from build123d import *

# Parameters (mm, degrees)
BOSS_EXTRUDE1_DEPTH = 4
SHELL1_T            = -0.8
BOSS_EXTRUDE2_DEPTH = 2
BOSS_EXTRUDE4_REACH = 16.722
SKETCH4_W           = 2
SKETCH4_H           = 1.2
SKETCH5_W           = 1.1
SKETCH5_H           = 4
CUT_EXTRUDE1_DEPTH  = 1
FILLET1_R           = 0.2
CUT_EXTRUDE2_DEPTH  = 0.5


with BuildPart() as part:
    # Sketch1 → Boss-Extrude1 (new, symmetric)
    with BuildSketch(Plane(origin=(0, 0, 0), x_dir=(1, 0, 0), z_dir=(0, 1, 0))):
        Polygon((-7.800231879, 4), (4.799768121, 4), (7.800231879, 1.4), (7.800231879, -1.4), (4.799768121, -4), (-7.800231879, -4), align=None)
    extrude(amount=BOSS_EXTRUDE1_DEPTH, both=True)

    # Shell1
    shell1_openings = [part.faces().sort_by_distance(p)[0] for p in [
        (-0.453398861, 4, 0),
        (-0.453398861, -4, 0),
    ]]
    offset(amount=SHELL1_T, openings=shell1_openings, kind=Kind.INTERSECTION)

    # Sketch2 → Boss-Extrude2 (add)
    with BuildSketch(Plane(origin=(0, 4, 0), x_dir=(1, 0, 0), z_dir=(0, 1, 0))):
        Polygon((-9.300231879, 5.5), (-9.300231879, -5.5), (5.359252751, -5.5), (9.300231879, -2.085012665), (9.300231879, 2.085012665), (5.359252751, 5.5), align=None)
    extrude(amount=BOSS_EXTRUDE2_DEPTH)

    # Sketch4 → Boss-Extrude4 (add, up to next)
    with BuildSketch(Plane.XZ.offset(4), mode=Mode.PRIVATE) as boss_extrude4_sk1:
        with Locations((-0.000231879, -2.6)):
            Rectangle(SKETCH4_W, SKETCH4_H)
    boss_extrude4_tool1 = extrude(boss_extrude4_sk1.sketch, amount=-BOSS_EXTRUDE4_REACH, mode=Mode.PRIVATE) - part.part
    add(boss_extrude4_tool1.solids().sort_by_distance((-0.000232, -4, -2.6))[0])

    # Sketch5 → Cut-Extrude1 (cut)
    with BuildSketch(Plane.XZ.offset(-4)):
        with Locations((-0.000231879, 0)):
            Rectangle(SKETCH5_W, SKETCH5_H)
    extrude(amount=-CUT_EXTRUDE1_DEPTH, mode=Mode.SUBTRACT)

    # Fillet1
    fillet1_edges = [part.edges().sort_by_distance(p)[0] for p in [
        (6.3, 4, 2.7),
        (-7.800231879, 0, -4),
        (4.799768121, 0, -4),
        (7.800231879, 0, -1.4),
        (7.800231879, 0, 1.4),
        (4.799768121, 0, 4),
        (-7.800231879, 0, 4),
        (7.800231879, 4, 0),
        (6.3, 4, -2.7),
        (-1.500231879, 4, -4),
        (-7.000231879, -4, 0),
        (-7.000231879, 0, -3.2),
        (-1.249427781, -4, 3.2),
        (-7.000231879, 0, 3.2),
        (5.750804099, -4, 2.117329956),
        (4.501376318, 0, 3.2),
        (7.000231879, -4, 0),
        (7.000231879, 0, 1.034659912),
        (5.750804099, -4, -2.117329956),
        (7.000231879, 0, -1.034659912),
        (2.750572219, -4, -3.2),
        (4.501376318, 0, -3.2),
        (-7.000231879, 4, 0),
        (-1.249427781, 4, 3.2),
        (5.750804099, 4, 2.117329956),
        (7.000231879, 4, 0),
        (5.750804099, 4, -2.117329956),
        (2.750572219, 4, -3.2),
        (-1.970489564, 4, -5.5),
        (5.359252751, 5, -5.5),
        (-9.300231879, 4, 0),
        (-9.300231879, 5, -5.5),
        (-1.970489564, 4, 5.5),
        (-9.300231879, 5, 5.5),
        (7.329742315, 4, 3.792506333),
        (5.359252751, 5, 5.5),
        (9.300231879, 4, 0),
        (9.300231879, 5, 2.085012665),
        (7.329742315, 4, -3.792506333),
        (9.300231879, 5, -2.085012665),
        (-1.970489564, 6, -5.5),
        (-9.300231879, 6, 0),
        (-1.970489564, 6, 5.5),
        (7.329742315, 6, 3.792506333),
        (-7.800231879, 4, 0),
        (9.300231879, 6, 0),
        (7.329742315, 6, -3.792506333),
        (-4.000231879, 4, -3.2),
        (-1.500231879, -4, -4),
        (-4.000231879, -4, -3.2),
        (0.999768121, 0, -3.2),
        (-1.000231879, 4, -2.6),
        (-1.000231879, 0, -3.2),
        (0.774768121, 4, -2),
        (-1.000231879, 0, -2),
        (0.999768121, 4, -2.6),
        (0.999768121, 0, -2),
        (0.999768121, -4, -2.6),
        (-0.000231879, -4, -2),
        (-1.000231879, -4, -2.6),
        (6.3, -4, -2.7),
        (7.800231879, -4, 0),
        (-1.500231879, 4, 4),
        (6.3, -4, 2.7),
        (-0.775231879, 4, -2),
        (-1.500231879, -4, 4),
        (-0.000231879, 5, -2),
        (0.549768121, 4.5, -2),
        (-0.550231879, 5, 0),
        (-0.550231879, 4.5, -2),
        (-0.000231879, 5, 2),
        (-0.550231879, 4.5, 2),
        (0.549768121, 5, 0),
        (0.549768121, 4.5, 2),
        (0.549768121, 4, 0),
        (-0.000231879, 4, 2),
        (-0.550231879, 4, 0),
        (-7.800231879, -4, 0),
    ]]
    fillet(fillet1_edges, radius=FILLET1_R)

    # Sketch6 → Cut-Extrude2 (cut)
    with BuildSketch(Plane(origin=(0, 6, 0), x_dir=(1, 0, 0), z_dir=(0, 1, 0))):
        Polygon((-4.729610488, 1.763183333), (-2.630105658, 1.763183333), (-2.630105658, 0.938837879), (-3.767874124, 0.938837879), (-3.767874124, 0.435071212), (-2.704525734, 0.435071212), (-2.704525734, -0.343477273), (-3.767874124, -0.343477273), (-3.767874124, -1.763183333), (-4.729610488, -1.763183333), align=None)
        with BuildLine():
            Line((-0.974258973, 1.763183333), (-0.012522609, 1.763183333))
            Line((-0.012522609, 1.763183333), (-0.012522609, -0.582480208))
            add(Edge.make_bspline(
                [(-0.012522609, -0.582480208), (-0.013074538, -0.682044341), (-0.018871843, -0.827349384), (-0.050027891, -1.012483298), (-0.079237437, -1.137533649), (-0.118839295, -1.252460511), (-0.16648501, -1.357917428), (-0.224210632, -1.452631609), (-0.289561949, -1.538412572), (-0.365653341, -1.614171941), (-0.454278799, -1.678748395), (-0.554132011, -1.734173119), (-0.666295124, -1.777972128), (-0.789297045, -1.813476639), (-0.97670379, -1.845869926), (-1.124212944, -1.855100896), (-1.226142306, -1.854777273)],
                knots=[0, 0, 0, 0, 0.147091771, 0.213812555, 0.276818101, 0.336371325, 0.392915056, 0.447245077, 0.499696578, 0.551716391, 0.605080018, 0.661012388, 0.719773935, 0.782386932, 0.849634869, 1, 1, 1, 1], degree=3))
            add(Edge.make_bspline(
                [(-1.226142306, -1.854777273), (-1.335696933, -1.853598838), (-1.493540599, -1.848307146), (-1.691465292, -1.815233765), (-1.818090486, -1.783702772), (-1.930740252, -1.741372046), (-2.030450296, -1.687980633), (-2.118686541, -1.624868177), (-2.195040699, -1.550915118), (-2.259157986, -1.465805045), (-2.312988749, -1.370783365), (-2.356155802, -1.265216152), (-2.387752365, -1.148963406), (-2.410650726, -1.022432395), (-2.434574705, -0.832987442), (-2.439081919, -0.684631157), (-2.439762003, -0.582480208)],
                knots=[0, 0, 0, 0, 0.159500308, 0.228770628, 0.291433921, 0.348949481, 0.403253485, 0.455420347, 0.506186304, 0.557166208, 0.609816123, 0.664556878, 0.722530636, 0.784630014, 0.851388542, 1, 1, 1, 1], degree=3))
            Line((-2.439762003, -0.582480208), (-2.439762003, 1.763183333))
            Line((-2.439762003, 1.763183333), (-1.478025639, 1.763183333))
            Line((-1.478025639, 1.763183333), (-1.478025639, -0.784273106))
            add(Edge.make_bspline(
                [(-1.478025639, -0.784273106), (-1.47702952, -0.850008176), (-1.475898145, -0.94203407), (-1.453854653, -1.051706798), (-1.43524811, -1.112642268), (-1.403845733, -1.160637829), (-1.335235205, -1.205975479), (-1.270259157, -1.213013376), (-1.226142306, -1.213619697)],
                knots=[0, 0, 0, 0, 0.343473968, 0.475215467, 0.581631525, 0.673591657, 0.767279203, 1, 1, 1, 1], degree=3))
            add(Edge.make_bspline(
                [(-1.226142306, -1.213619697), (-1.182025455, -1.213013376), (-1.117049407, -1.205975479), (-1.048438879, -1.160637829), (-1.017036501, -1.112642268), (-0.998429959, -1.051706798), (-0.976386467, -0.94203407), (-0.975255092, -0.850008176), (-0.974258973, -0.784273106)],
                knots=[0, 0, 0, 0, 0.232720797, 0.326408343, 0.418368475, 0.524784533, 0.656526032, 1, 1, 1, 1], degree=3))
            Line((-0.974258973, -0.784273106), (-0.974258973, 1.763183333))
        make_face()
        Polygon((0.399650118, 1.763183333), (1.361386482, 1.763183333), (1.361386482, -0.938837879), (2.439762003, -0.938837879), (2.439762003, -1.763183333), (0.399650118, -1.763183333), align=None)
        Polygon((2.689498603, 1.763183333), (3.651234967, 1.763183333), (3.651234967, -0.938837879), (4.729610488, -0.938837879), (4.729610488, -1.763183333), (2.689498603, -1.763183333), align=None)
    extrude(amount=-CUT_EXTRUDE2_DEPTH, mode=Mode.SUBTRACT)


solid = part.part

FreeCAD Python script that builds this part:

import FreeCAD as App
import Part
import Sketcher
from FreeCAD import Vector
Q = App.Units.Quantity


def faces_at(feature, points):
    """Names of the faces that lie closest to the given points."""
    faces = feature.Shape.Faces
    near = lambda p: min(range(len(faces)), key=lambda i: faces[i].distToShape(Part.Vertex(*p))[0])
    return sorted({f"Face{near(p) + 1}" for p in points})


def add_polygon(sketch, points):
    """Adds a closed chain of lines whose ends are joined by coincident constraints."""
    first, n = sketch.GeometryCount, len(points)
    for a, b in zip(points, points[1:] + points[:1]):
        sketch.addGeometry(Part.LineSegment(App.Vector(*a, 0), App.Vector(*b, 0)), False)
    for i in range(n):
        sketch.addConstraint(Sketcher.Constraint("Coincident", first + i, 2, first + (i + 1) % n, 1))

doc = App.newDocument("Part")
body = doc.addObject("PartDesign::Body", "Body")

sketch1 = body.newObject("Sketcher::SketchObject", "Sketch")
sketch1.AttachmentSupport = (doc.getObject("XZ_Plane"), [""])
sketch1.MapMode = "FlatFace"
add_polygon(sketch1, [(4.799768, -4), (-7.800232, -4), (-7.800232, 4), (4.799768, 4), (7.800232, 1.4), (7.800232, -1.4)])
sketch1.addConstraint(Sketcher.Constraint("Horizontal", 0))
sketch1.addConstraint(Sketcher.Constraint("Vertical", 1))
sketch1.addConstraint(Sketcher.Constraint("Horizontal", 2))
sketch1.addConstraint(Sketcher.Constraint("Vertical", 4))
sketch1.addConstraint(Sketcher.Constraint("Symmetric", 2, 2, 5, 2, -1))
sketch1.addConstraint(Sketcher.Constraint("Equal", 3, 5))
sketch1.addConstraint(Sketcher.Constraint("DistanceY", 1, 1, 1, 2, 8.0))
sketch1.addConstraint(Sketcher.Constraint("DistanceX", 0, 2, 0, 1, 12.6))
sketch1.addConstraint(Sketcher.Constraint("DistanceY", 4, 2, 4, 1, 2.8))
sketch1.addConstraint(Sketcher.Constraint("Angle", 3, Q("-40.91 deg")))
sketch1.addConstraint(Sketcher.Constraint("DistanceX", 0, 2, -1, 1, 7.800232))
pad1 = body.newObject("PartDesign::Pad", "Pad")
pad1.Profile = sketch1
pad1.Length = 8
pad1.Midplane = True
doc.recompute()

thickness = body.newObject("PartDesign::Thickness", "Thickness")
thickness.Base = (pad1, faces_at(pad1, [(0, 4, 0), (0, -4, 0)]))
thickness.Value = 0.8
thickness.Reversed = True
thickness.Join = "Intersection"

sketch2 = body.newObject("Sketcher::SketchObject", "Sketch001")
sketch2.AttachmentSupport = (doc.getObject("XZ_Plane"), [""])
sketch2.MapMode = "FlatFace"
sketch2.AttachmentOffset = App.Placement(Vector(0, 0, -4), App.Rotation())
add_polygon(sketch2, [(-9.300232, -5.5), (-9.300232, 5.5), (5.359253, 5.5), (9.300232, 2.085013), (9.300232, -2.085013), (5.359253, -5.5)])
sketch2.addConstraint(Sketcher.Constraint("Vertical", 0))
sketch2.addConstraint(Sketcher.Constraint("Horizontal", 1))
sketch2.addConstraint(Sketcher.Constraint("Vertical", 3))
sketch2.addConstraint(Sketcher.Constraint("Horizontal", 5))
sketch2.addConstraint(Sketcher.Constraint("Symmetric", 1, 2, 4, 2, -1))
sketch2.addConstraint(Sketcher.Constraint("Equal", 2, 4))
sketch2.addConstraint(Sketcher.Constraint("DistanceY", 0, 1, 0, 2, 11.0))
sketch2.addConstraint(Sketcher.Constraint("Angle", 2, Q("-40.91 deg")))
sketch2.addConstraint(Sketcher.Constraint("DistanceX", 1, 1, 1, 2, 14.659485))
sketch2.addConstraint(Sketcher.Constraint("DistanceY", 3, 2, 3, 1, 4.170025))
sketch2.addConstraint(Sketcher.Constraint("DistanceX", 0, 2, -1, 1, 9.300232))
pad2 = body.newObject("PartDesign::Pad", "Pad001")
pad2.Profile = sketch2
pad2.Length = 2
pad2.Reversed = True

sketch3 = body.newObject("Sketcher::SketchObject", "Sketch002")
sketch3.AttachmentSupport = (doc.getObject("XZ_Plane"), [""])
sketch3.MapMode = "FlatFace"
sketch3.AttachmentOffset = App.Placement(Vector(0, 0, 4), App.Rotation())
add_polygon(sketch3, [(-1.000232, -2), (-1.000232, -3.2), (0.999768, -3.2), (0.999768, -2)])
sketch3.addConstraint(Sketcher.Constraint("Vertical", 0))
sketch3.addConstraint(Sketcher.Constraint("Horizontal", 1))
sketch3.addConstraint(Sketcher.Constraint("Vertical", 2))
sketch3.addConstraint(Sketcher.Constraint("Horizontal", 3))
sketch3.addConstraint(Sketcher.Constraint("DistanceX", 1, 1, 1, 2, 2.0))
sketch3.addConstraint(Sketcher.Constraint("DistanceY", 0, 2, 0, 1, 1.2))
sketch3.addConstraint(Sketcher.Constraint("DistanceY", 2, 2, -1, 1, 2.0))
sketch3.addConstraint(Sketcher.Constraint("DistanceX", 0, 2, -1, 1, 1.000232))
pad3 = body.newObject("PartDesign::Pad", "Pad002")
pad3.Profile = sketch3
pad3.Type = "UpToFirst"
pad3.Reversed = True

sketch4 = body.newObject("Sketcher::SketchObject", "Sketch003")
sketch4.AttachmentSupport = (doc.getObject("XZ_Plane"), [""])
sketch4.MapMode = "FlatFace"
sketch4.AttachmentOffset = App.Placement(Vector(0, 0, -4), App.Rotation())
add_polygon(sketch4, [(-0.550232, 2), (-0.550232, -2), (0.549768, -2), (0.549768, 2)])
sketch4.addConstraint(Sketcher.Constraint("Vertical", 0))
sketch4.addConstraint(Sketcher.Constraint("Horizontal", 1))
sketch4.addConstraint(Sketcher.Constraint("Vertical", 2))
sketch4.addConstraint(Sketcher.Constraint("Horizontal", 3))
sketch4.addConstraint(Sketcher.Constraint("DistanceY", 0, 2, 0, 1, 4.0))
sketch4.addConstraint(Sketcher.Constraint("DistanceX", 1, 1, 1, 2, 1.1))
sketch4.addConstraint(Sketcher.Constraint("DistanceY", 0, 2, -1, 1, 2.0))
sketch4.addConstraint(Sketcher.Constraint("DistanceX", 0, 2, -1, 1, 0.550232))
pocket1 = body.newObject("PartDesign::Pocket", "Pocket")
pocket1.Profile = sketch4
pocket1.Length = 1
doc.recompute()

fillet = body.newObject("PartDesign::Fillet", "Fillet")
fillet.Base = (pocket1, ["Edge1"])
fillet.UseAllEdges = True
fillet.Radius = 0.2

sketch5 = body.newObject("Sketcher::SketchObject", "Sketch004")
sketch5.AttachmentSupport = (doc.getObject("XZ_Plane"), [""])
sketch5.MapMode = "FlatFace"
sketch5.AttachmentOffset = App.Placement(Vector(0, 0, -6), App.Rotation())
add_polygon(sketch5, [(-2.630106, -1.763183), (-4.72961, -1.763183), (-4.72961, 1.763183), (-3.767874, 1.763183), (-3.767874, 0.343477), (-2.704526, 0.343477), (-2.704526, -0.435071), (-3.767874, -0.435071), (-3.767874, -0.938838), (-2.630106, -0.938838)])
sketch5.addGeometry(Part.LineSegment(Vector(-0.012523, -1.763183, 0), Vector(-0.974259, -1.763183, 0)), False)
sketch5.addGeometry(Part.LineSegment(Vector(-0.974259, -1.763183, 0), Vector(-0.974259, 0.784273, 0)), False)
sketch5.addGeometry(Part.BSplineCurve([Vector(-1.226142, 1.21362, 0), Vector(-1.182025, 1.213013, 0), Vector(-1.117049, 1.205975, 0), Vector(-1.048439, 1.160638, 0), Vector(-1.017037, 1.112642, 0), Vector(-0.99843, 1.051707, 0), Vector(-0.976386, 0.942034, 0), Vector(-0.975255, 0.850008, 0), Vector(-0.974259, 0.784273, 0)], [4, 1, 1, 1, 1, 1, 4], [0, 0.232720797, 0.326408343, 0.418368475, 0.524784533, 0.656526032, 1], False, 3, [1, 1, 1, 1, 1, 1, 1, 1, 1], False), False)
sketch5.addGeometry(Part.BSplineCurve([Vector(-1.478026, 0.784273, 0), Vector(-1.47703, 0.850008, 0), Vector(-1.475898, 0.942034, 0), Vector(-1.453855, 1.051707, 0), Vector(-1.435248, 1.112642, 0), Vector(-1.403846, 1.160638, 0), Vector(-1.335235, 1.205975, 0), Vector(-1.270259, 1.213013, 0), Vector(-1.226142, 1.21362, 0)], [4, 1, 1, 1, 1, 1, 4], [0, 0.343473968, 0.475215467, 0.581631525, 0.673591657, 0.767279203, 1], False, 3, [1, 1, 1, 1, 1, 1, 1, 1, 1], False), False)
sketch5.addGeometry(Part.LineSegment(Vector(-1.478026, 0.784273, 0), Vector(-1.478026, -1.763183, 0)), False)
sketch5.addGeometry(Part.LineSegment(Vector(-1.478026, -1.763183, 0), Vector(-2.439762, -1.763183, 0)), False)
sketch5.addGeometry(Part.LineSegment(Vector(-2.439762, -1.763183, 0), Vector(-2.439762, 0.58248, 0)), False)
sketch5.addGeometry(Part.BSplineCurve([Vector(-1.226142, 1.854777, 0), Vector(-1.335697, 1.853599, 0), Vector(-1.493541, 1.848307, 0), Vector(-1.691465, 1.815234, 0), Vector(-1.81809, 1.783703, 0), Vector(-1.93074, 1.741372, 0), Vector(-2.03045, 1.687981, 0), Vector(-2.118687, 1.624868, 0), Vector(-2.195041, 1.550915, 0), Vector(-2.259158, 1.465805, 0), Vector(-2.312989, 1.370783, 0), Vector(-2.356156, 1.265216, 0), Vector(-2.387752, 1.148963, 0), Vector(-2.410651, 1.022432, 0), Vector(-2.434575, 0.832987, 0), Vector(-2.439082, 0.684631, 0), Vector(-2.439762, 0.58248, 0)], [4, 1, 1, 1, 1, 1, 1, 1, 1, 1, 1, 1, 1, 1, 4], [0, 0.159500308, 0.228770628, 0.291433921, 0.348949481, 0.403253485, 0.455420347, 0.506186304, 0.557166208, 0.609816123, 0.664556878, 0.722530636, 0.784630014, 0.851388542, 1], False, 3, [1, 1, 1, 1, 1, 1, 1, 1, 1, 1, 1, 1, 1, 1, 1, 1, 1], False), False)
sketch5.addGeometry(Part.BSplineCurve([Vector(-0.012523, 0.58248, 0), Vector(-0.013075, 0.682044, 0), Vector(-0.018872, 0.827349, 0), Vector(-0.050028, 1.012483, 0), Vector(-0.079237, 1.137534, 0), Vector(-0.118839, 1.252461, 0), Vector(-0.166485, 1.357917, 0), Vector(-0.224211, 1.452632, 0), Vector(-0.289562, 1.538413, 0), Vector(-0.365653, 1.614172, 0), Vector(-0.454279, 1.678748, 0), Vector(-0.554132, 1.734173, 0), Vector(-0.666295, 1.777972, 0), Vector(-0.789297, 1.813477, 0), Vector(-0.976704, 1.84587, 0), Vector(-1.124213, 1.855101, 0), Vector(-1.226142, 1.854777, 0)], [4, 1, 1, 1, 1, 1, 1, 1, 1, 1, 1, 1, 1, 1, 4], [0, 0.147091771, 0.213812555, 0.276818101, 0.336371325, 0.392915056, 0.447245077, 0.499696578, 0.551716391, 0.605080018, 0.661012388, 0.719773935, 0.782386932, 0.849634869, 1], False, 3, [1, 1, 1, 1, 1, 1, 1, 1, 1, 1, 1, 1, 1, 1, 1, 1, 1], False), False)
sketch5.addGeometry(Part.LineSegment(Vector(-0.012523, 0.58248, 0), Vector(-0.012523, -1.763183, 0)), False)
add_polygon(sketch5, [(1.361386, -1.763183), (0.39965, -1.763183), (0.39965, 1.763183), (2.439762, 1.763183), (2.439762, 0.938838), (1.361386, 0.938838)])
add_polygon(sketch5, [(3.651235, -1.763183), (2.689499, -1.763183), (2.689499, 1.763183), (4.72961, 1.763183), (4.72961, 0.938838), (3.651235, 0.938838)])
sketch5.addConstraint(Sketcher.Constraint("Block", 12))
sketch5.addConstraint(Sketcher.Constraint("Block", 13))
sketch5.addConstraint(Sketcher.Constraint("Block", 17))
sketch5.addConstraint(Sketcher.Constraint("Block", 18))
sketch5.addConstraint(Sketcher.Constraint("Coincident", 10, 2, 11, 1))
sketch5.addConstraint(Sketcher.Constraint("Coincident", 11, 2, 12, 2))
sketch5.addConstraint(Sketcher.Constraint("Coincident", 13, 1, 14, 1))
sketch5.addConstraint(Sketcher.Constraint("Coincident", 14, 2, 15, 1))
sketch5.addConstraint(Sketcher.Constraint("Coincident", 15, 2, 16, 1))
sketch5.addConstraint(Sketcher.Constraint("Coincident", 16, 2, 17, 2))
sketch5.addConstraint(Sketcher.Constraint("Coincident", 18, 1, 19, 1))
sketch5.addConstraint(Sketcher.Constraint("Coincident", 19, 2, 10, 1))
sketch5.addConstraint(Sketcher.Constraint("Horizontal", 0))
sketch5.addConstraint(Sketcher.Constraint("Vertical", 1))
sketch5.addConstraint(Sketcher.Constraint("Horizontal", 2))
sketch5.addConstraint(Sketcher.Constraint("Vertical", 3))
sketch5.addConstraint(Sketcher.Constraint("Horizontal", 4))
sketch5.addConstraint(Sketcher.Constraint("Vertical", 5))
sketch5.addConstraint(Sketcher.Constraint("Horizontal", 6))
sketch5.addConstraint(Sketcher.Constraint("Vertical", 7))
sketch5.addConstraint(Sketcher.Constraint("Horizontal", 8))
sketch5.addConstraint(Sketcher.Constraint("Vertical", 9))
sketch5.addConstraint(Sketcher.Constraint("Horizontal", 10))
sketch5.addConstraint(Sketcher.Constraint("Vertical", 11))
sketch5.addConstraint(Sketcher.Constraint("Vertical", 14))
sketch5.addConstraint(Sketcher.Constraint("Horizontal", 15))
sketch5.addConstraint(Sketcher.Constraint("Vertical", 16))
sketch5.addConstraint(Sketcher.Constraint("Vertical", 19))
sketch5.addConstraint(Sketcher.Constraint("Horizontal", 20))
sketch5.addConstraint(Sketcher.Constraint("Vertical", 21))
sketch5.addConstraint(Sketcher.Constraint("Horizontal", 22))
sketch5.addConstraint(Sketcher.Constraint("Vertical", 23))
sketch5.addConstraint(Sketcher.Constraint("Horizontal", 24))
sketch5.addConstraint(Sketcher.Constraint("Vertical", 25))
sketch5.addConstraint(Sketcher.Constraint("Horizontal", 26))
sketch5.addConstraint(Sketcher.Constraint("Vertical", 27))
sketch5.addConstraint(Sketcher.Constraint("Horizontal", 28))
sketch5.addConstraint(Sketcher.Constraint("Vertical", 29))
sketch5.addConstraint(Sketcher.Constraint("Horizontal", 30))
sketch5.addConstraint(Sketcher.Constraint("Vertical", 31))
sketch5.addConstraint(Sketcher.Constraint("DistanceX", 4, 1, 4, 2, 1.063348))
sketch5.addConstraint(Sketcher.Constraint("DistanceX", 6, 2, 6, 1, 1.063348))
sketch5.addConstraint(Sketcher.Constraint("DistanceX", 8, 1, 8, 2, 1.137768))
sketch5.addConstraint(Sketcher.Constraint("DistanceX", 22, 1, 22, 2, 2.040112))
sketch5.addConstraint(Sketcher.Constraint("DistanceX", 28, 1, 28, 2, 2.040112))
sketch5.addConstraint(Sketcher.Constraint("DistanceY", 5, 2, 5, 1, 0.778548))
sketch5.addConstraint(Sketcher.Constraint("DistanceY", 25, 2, 25, 1, 2.702021))
sketch5.addConstraint(Sketcher.Constraint("DistanceY", 31, 2, 31, 1, 2.702021))
sketch5.addConstraint(Sketcher.Constraint("DistanceX", -1, 1, 26, 2, 2.689499))
sketch5.addConstraint(Sketcher.Constraint("DistanceX", 5, 2, 14, 2, 1.2265))
sketch5.addConstraint(Sketcher.Constraint("DistanceX", 0, 2, 0, 1, 2.099505))
sketch5.addConstraint(Sketcher.Constraint("DistanceX", 20, 2, 20, 1, 0.961736))
sketch5.addConstraint(Sketcher.Constraint("DistanceX", 26, 2, 26, 1, 0.961736))
sketch5.addConstraint(Sketcher.Constraint("DistanceY", 1, 1, 1, 2, 3.526367))
sketch5.addConstraint(Sketcher.Constraint("DistanceY", 3, 2, 3, 1, 1.419706))
sketch5.addConstraint(Sketcher.Constraint("DistanceY", 7, 2, 7, 1, 0.503767))
sketch5.addConstraint(Sketcher.Constraint("DistanceY", 11, 1, 11, 2, 2.547456))
sketch5.addConstraint(Sketcher.Constraint("DistanceY", 14, 2, 14, 1, 2.547456))
sketch5.addConstraint(Sketcher.Constraint("DistanceY", 21, 1, 21, 2, 3.526367))
sketch5.addConstraint(Sketcher.Constraint("DistanceY", 27, 1, 27, 2, 3.526367))
sketch5.addConstraint(Sketcher.Constraint("DistanceY", 5, 2, -1, 1, 0.435071))
sketch5.addConstraint(Sketcher.Constraint("DistanceX", -1, 1, 20, 2, 0.39965))
sketch5.addConstraint(Sketcher.Constraint("DistanceY", 11, 2, 21, 2, 0.97891))
sketch5.addConstraint(Sketcher.Constraint("DistanceY", 26, 2, 23, 2, 2.702021))
pocket2 = body.newObject("PartDesign::Pocket", "Pocket001")
pocket2.Profile = sketch5
pocket2.Length = 0.5
pocket2.Reversed = True

doc.recompute()
